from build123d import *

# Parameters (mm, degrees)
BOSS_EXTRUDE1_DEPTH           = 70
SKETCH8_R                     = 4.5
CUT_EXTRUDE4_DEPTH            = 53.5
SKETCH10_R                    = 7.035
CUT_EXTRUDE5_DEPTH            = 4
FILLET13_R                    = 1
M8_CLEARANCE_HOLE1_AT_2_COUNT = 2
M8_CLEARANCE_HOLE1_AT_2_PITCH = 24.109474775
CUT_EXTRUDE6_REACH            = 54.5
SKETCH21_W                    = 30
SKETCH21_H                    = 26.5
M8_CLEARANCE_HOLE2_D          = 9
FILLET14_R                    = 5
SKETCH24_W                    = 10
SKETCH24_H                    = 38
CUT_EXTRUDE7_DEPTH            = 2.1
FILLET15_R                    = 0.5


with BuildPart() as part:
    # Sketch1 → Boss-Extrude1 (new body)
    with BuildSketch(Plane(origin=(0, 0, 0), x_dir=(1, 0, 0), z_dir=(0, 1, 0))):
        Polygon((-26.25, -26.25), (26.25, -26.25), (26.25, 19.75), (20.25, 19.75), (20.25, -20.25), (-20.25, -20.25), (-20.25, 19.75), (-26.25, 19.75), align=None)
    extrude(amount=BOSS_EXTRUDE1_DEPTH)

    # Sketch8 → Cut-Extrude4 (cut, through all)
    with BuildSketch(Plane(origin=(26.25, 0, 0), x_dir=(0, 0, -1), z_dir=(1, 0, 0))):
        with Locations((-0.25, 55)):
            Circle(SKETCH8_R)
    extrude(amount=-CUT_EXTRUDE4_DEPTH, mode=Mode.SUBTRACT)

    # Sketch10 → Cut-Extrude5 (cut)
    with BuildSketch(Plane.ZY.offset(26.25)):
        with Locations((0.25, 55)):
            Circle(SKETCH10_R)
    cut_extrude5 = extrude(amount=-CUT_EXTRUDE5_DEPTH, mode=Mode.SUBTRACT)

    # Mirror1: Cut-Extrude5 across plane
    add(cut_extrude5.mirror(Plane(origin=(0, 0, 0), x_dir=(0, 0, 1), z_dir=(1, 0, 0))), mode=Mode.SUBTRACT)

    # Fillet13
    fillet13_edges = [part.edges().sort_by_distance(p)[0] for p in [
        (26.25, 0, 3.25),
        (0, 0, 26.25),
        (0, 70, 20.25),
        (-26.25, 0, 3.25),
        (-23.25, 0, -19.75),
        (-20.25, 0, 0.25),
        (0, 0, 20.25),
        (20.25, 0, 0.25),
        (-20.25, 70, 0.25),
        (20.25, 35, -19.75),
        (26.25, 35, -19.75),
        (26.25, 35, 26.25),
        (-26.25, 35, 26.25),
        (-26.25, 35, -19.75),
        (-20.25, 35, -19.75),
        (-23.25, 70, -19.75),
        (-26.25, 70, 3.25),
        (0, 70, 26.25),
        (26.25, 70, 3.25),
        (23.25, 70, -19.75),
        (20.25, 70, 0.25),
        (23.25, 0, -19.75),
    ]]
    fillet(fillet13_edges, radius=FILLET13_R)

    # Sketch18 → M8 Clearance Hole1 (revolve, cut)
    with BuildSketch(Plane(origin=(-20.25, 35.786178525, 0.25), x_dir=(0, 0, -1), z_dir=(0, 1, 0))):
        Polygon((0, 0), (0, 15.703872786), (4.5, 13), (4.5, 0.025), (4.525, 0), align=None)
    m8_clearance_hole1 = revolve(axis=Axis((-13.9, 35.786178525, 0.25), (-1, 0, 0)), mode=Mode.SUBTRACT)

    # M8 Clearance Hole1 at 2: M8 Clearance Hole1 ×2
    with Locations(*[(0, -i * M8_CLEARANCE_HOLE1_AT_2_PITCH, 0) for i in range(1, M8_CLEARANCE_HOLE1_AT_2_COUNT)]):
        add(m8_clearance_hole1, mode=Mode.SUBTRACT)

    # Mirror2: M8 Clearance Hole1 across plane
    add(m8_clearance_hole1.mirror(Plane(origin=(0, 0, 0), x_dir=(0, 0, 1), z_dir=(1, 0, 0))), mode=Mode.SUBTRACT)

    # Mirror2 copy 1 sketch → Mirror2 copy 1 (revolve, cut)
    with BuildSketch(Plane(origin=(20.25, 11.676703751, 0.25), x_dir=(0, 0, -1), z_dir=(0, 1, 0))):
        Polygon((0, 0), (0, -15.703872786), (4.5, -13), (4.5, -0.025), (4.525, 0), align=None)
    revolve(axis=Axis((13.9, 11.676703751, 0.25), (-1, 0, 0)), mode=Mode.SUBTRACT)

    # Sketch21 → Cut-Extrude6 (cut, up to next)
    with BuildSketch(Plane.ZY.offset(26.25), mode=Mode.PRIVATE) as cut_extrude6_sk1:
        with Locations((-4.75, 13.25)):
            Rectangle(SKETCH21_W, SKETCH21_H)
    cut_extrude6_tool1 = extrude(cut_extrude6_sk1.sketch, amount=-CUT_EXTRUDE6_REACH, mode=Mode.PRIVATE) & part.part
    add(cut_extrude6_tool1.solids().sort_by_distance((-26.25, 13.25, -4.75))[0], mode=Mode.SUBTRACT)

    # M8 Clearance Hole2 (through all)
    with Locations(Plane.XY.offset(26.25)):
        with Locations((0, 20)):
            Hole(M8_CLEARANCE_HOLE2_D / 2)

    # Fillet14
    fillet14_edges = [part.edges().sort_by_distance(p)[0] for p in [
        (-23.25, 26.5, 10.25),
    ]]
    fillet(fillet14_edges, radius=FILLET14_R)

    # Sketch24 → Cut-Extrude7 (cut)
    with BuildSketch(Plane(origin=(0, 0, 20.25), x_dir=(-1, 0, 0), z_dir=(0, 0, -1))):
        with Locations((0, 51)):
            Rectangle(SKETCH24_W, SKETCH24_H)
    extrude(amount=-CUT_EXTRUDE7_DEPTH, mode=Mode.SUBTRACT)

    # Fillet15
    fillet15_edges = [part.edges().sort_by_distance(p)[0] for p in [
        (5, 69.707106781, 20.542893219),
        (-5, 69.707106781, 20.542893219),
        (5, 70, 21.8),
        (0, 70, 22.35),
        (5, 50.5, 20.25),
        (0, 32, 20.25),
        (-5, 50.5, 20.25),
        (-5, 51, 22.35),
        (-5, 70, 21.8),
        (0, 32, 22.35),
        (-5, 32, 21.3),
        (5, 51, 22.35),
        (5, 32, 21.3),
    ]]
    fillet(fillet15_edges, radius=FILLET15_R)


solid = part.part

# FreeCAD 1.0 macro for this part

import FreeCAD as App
import Part
import Sketcher
from FreeCAD import Vector
Q = App.Units.Quantity


def edges_at(feature, points):
    """Names of the edges that pass closest to the given points."""
    edges = feature.Shape.Edges
    near = lambda p: min(range(len(edges)), key=lambda i: edges[i].distToShape(Part.Vertex(*p))[0])
    return sorted({f"Edge{near(p) + 1}" for p in points})


def add_polygon(sketch, points):
    """Adds a closed chain of lines whose ends are joined by coincident constraints."""
    first, n = sketch.GeometryCount, len(points)
    for a, b in zip(points, points[1:] + points[:1]):
        sketch.addGeometry(Part.LineSegment(App.Vector(*a, 0), App.Vector(*b, 0)), False)
    for i in range(n):
        sketch.addConstraint(Sketcher.Constraint("Coincident", first + i, 2, first + (i + 1) % n, 1))

doc = App.newDocument("Part")
body = doc.addObject("PartDesign::Body", "Body")

# Sketch on XZ plane
sketch1 = body.newObject("Sketcher::SketchObject", "Sketch")
sketch1.AttachmentSupport = (doc.getObject("XZ_Plane"), [""])
sketch1.MapMode = "FlatFace"
add_polygon(sketch1, [(-26.25, 26.25), (26.25, 26.25), (26.25, -19.75), (20.25, -19.75), (20.25, 20.25), (-20.25, 20.25), (-20.25, -19.75), (-26.25, -19.75)])  # lines 0-7
sketch1.addConstraint([
    Sketcher.Constraint("Horizontal", 0),
    Sketcher.Constraint("Vertical", 1),
    Sketcher.Constraint("Horizontal", 2),
    Sketcher.Constraint("Vertical", 3),
    Sketcher.Constraint("Horizontal", 4),
    Sketcher.Constraint("Vertical", 5),
    Sketcher.Constraint("Horizontal", 6),
    Sketcher.Constraint("Vertical", 7),
    Sketcher.Constraint("Symmetric", 2, 2, 5, 2, -2),
    Sketcher.Constraint("Equal", 2, 6),
    Sketcher.Constraint("DistanceX", 2, 2, 2, 1, 6.0),
    Sketcher.Constraint("DistanceY", 1, 2, 1, 1, 46.0),
    Sketcher.Constraint("DistanceY", 3, 1, 3, 2, 40.0),
    Sketcher.Constraint("DistanceX", 0, 1, 0, 2, 52.5),
    Sketcher.Constraint("DistanceY", -1, 1, 0, 2, 26.25),
])
pad1 = body.newObject("PartDesign::Pad", "Pad")
pad1.Profile = sketch1
pad1.Length = 70
pad1.Reversed = True

# Sketch on YZ plane
sketch2 = body.newObject("Sketcher::SketchObject", "Sketch001")
sketch2.AttachmentSupport = (doc.getObject("YZ_Plane"), [""])
sketch2.MapMode = "FlatFace"
sketch2.AttachmentOffset = App.Placement(Vector(0, 0, 26.25), App.Rotation())
sketch2.addGeometry(Part.Circle(Vector(55, 0.25, 0), Vector(0, 0, 1), 4.5), False)
sketch2.addConstraint([
    Sketcher.Constraint("Diameter", 0, 9.0),
    Sketcher.Constraint("DistanceX", -1, 1, 0, 3, 55.0),
    Sketcher.Constraint("DistanceY", -1, 1, 0, 3, 0.25),
])
pocket1 = body.newObject("PartDesign::Pocket", "Pocket")
pocket1.Profile = sketch2
pocket1.Type = "ThroughAll"

# Sketch on YZ plane
sketch3 = body.newObject("Sketcher::SketchObject", "Sketch002")
sketch3.AttachmentSupport = (doc.getObject("YZ_Plane"), [""])
sketch3.MapMode = "FlatFace"
sketch3.AttachmentOffset = App.Placement(Vector(0, 0, -26.25), App.Rotation())
sketch3.addGeometry(Part.Circle(Vector(55, 0.25, 0), Vector(0, 0, 1), 7.035), False)
sketch3.addConstraint([
    Sketcher.Constraint("Diameter", 0, 14.07),
    Sketcher.Constraint("DistanceX", -1, 1, 0, 3, 55.0),
    Sketcher.Constraint("DistanceY", -1, 1, 0, 3, 0.25),
])
pocket2 = body.newObject("PartDesign::Pocket", "Pocket001")
pocket2.Profile = sketch3
pocket2.Length = 4
pocket2.Reversed = True
doc.recompute()

mirrored = body.newObject("PartDesign::Mirrored", "Mirrored")
mirrored.Originals = [pocket2]
mirrored.MirrorPlane = (doc.getObject("YZ_Plane"), [""])
body.Tip = mirrored
doc.recompute()

fillet = body.newObject("PartDesign::Fillet", "Fillet")
fillet.Base = (mirrored, edges_at(mirrored, [
    (26.25, 0, 3.25),
    (0, 0, 26.25),
    (0, 70, 20.25),
    (-26.25, 0, 3.25),
    (-23.25, 0, -19.75),
    (-20.25, 0, 0.25),
    (0, 0, 20.25),
    (20.25, 0, 0.25),
    (-20.25, 70, 0.25),
    (20.25, 35, -19.75),
    (26.25, 35, -19.75),
    (26.25, 35, 26.25),
    (-26.25, 35, 26.25),
    (-26.25, 35, -19.75),
    (-20.25, 35, -19.75),
    (-23.25, 70, -19.75),
    (-26.25, 70, 3.25),
    (0, 70, 26.25),
    (26.25, 70, 3.25),
    (23.25, 70, -19.75),
    (20.25, 70, 0.25),
    (23.25, 0, -19.75),
]))
fillet.Radius = 1

# Sketch on XZ plane
sketch4 = body.newObject("Sketcher::SketchObject", "Sketch003")
sketch4.AttachmentSupport = (doc.getObject("XZ_Plane"), [""])
sketch4.MapMode = "FlatFace"
sketch4.AttachmentOffset = App.Placement(Vector(0, 0, -35.786179), App.Rotation())
add_polygon(sketch4, [(-35.953873, 0.25), (-20.25, 0.25), (-20.25, -4.275), (-20.275, -4.25), (-33.25, -4.25)])  # lines 0-4
sketch4.addGeometry(Part.LineSegment(Vector(-20.25, 0.25, 0), Vector(-35.953873, 0.25, 0)), True)  # axis
sketch4.addConstraint([
    Sketcher.Constraint("Horizontal", 0),
    Sketcher.Constraint("Vertical", 1),
    Sketcher.Constraint("Horizontal", 3),
    Sketcher.Constraint("Horizontal", 5),
    Sketcher.Constraint("Coincident", 5, 1, 0, 2),
    Sketcher.Constraint("Equal", 0, 5),
    Sketcher.Constraint("Angle", 2, Q("135 deg")),
    Sketcher.Constraint("Angle", 4, Q("121 deg")),
    Sketcher.Constraint("DistanceX", 3, 2, 1, 2, 13.0),
    Sketcher.Constraint("DistanceY", 2, 2, 0, 2, 4.5),
    Sketcher.Constraint("DistanceX", 3, 2, 3, 1, 12.975),
    Sketcher.Constraint("DistanceX", 0, 2, -1, 1, 20.25),
    Sketcher.Constraint("DistanceY", -1, 1, 0, 2, 0.25),
])
groove = body.newObject("PartDesign::Groove", "Groove")
groove.Profile = sketch4
groove.ReferenceAxis = (sketch4, ["Axis0"])
groove.Angle = 360
doc.recompute()

linearpattern = body.newObject("PartDesign::LinearPattern", "LinearPattern")
linearpattern.Originals = [groove]
linearpattern.Direction = (doc.getObject("Y_Axis"), [""])
linearpattern.Mode = "offset"
linearpattern.Offset = 24.109475
linearpattern.Occurrences = 2
linearpattern.Reversed = True
body.Tip = linearpattern
doc.recompute()

mirrored2 = body.newObject("PartDesign::Mirrored", "Mirrored001")
mirrored2.Originals = [groove]
mirrored2.MirrorPlane = (doc.getObject("YZ_Plane"), [""])
body.Tip = mirrored2

# Sketch on XZ plane
sketch5 = body.newObject("Sketcher::SketchObject", "Sketch004")
sketch5.AttachmentSupport = (doc.getObject("XZ_Plane"), [""])
sketch5.MapMode = "FlatFace"
sketch5.AttachmentOffset = App.Placement(Vector(0, 0, -11.676704), App.Rotation())
add_polygon(sketch5, [(20.25, 0.25), (35.953873, 0.25), (33.25, -4.25), (20.275, -4.25), (20.25, -4.275)])  # lines 0-4
sketch5.addGeometry(Part.LineSegment(Vector(35.953873, 0.25, 0), Vector(20.25, 0.25, 0)), True)  # axis
sketch5.addConstraint([
    Sketcher.Constraint("Horizontal", 0),
    Sketcher.Constraint("Horizontal", 2),
    Sketcher.Constraint("Vertical", 4),
    Sketcher.Constraint("Horizontal", 5),
    Sketcher.Constraint("Coincident", 5, 1, 0, 2),
    Sketcher.Constraint("Vertical", 3, 2, 5, 2),
    Sketcher.Constraint("Angle", 1, Q("-121 deg")),
    Sketcher.Constraint("Angle", 3, Q("-135 deg")),
    Sketcher.Constraint("DistanceX", 3, 2, 1, 2, 13.0),
    Sketcher.Constraint("DistanceY", 1, 2, 0, 2, 4.5),
    Sketcher.Constraint("DistanceX", 2, 2, 2, 1, 12.975),
    Sketcher.Constraint("DistanceY", -1, 1, 0, 2, 0.25),
    Sketcher.Constraint("DistanceX", -1, 1, 1, 2, 33.25),
])
groove2 = body.newObject("PartDesign::Groove", "Groove001")
groove2.Profile = sketch5
groove2.ReferenceAxis = (sketch5, ["Axis0"])
groove2.Angle = 360

# Sketch on YZ plane
sketch6 = body.newObject("Sketcher::SketchObject", "Sketch005")
sketch6.AttachmentSupport = (doc.getObject("YZ_Plane"), [""])
sketch6.MapMode = "FlatFace"
sketch6.AttachmentOffset = App.Placement(Vector(0, 0, -26.25), App.Rotation())
add_polygon(sketch6, [(26.5, -19.75), (0, -19.75), (0, 10.25), (26.5, 10.25)])  # lines 0-3
sketch6.addConstraint([
    Sketcher.Constraint("Horizontal", 0),
    Sketcher.Constraint("Vertical", 1),
    Sketcher.Constraint("Horizontal", 2),
    Sketcher.Constraint("Vertical", 3),
    Sketcher.Constraint("PointOnObject", 0, 2, -2),
    Sketcher.Constraint("DistanceY", 1, 1, 1, 2, 30.0),
    Sketcher.Constraint("DistanceX", 0, 2, 0, 1, 26.5),
    Sketcher.Constraint("DistanceY", 0, 2, -1, 1, 19.75),
])
pocket3 = body.newObject("PartDesign::Pocket", "Pocket002")
pocket3.Profile = sketch6
pocket3.Type = "UpToFirst"
pocket3.Reversed = True

# Sketch on XY plane
sketch7 = body.newObject("Sketcher::SketchObject", "Sketch006")
sketch7.AttachmentSupport = (doc.getObject("XY_Plane"), [""])
sketch7.MapMode = "FlatFace"
sketch7.AttachmentOffset = App.Placement(Vector(0, 0, 26.25), App.Rotation())
sketch7.addGeometry(Part.Circle(Vector(0, 20, 0), Vector(0, 0, 1), 4.5), False)
sketch7.addConstraint([
    Sketcher.Constraint("PointOnObject", 0, 3, -2),
    Sketcher.Constraint("Diameter", 0, 9.0),
    Sketcher.Constraint("DistanceY", -1, 1, 0, 3, 20.0),
])
doc.recompute()
hole = body.newObject("PartDesign::Hole", "Hole")
hole.Profile = sketch7
hole.ThreadType = "None"
hole.Diameter = 9
hole.DepthType = "ThroughAll"
doc.recompute()

fillet2 = body.newObject("PartDesign::Fillet", "Fillet001")
fillet2.Base = (hole, edges_at(hole, [(-23.25, 26.5, 10.25)]))
fillet2.Radius = 5

# Sketch on XY plane
sketch8 = body.newObject("Sketcher::SketchObject", "Sketch007")
sketch8.AttachmentSupport = (doc.getObject("XY_Plane"), [""])
sketch8.MapMode = "FlatFace"
sketch8.AttachmentOffset = App.Placement(Vector(0, 0, 20.25), App.Rotation())
add_polygon(sketch8, [(5, 70), (5, 32), (-5, 32), (-5, 70)])  # lines 0-3
sketch8.addConstraint([
    Sketcher.Constraint("Vertical", 0),
    Sketcher.Constraint("Horizontal", 1),
    Sketcher.Constraint("Vertical", 2),
    Sketcher.Constraint("Horizontal", 3),
    Sketcher.Constraint("DistanceX", 1, 2, 1, 1, 10.0),
    Sketcher.Constraint("DistanceY", 0, 2, 0, 1, 38.0),
    Sketcher.Constraint("DistanceX", -1, 1, 0, 2, 5.0),
    Sketcher.Constraint("DistanceY", -1, 1, 0, 2, 32.0),
])
pocket4 = body.newObject("PartDesign::Pocket", "Pocket003")
pocket4.Profile = sketch8
pocket4.Length = 2.1
pocket4.Reversed = True
doc.recompute()

fillet3 = body.newObject("PartDesign::Fillet", "Fillet002")
fillet3.Base = (pocket4, edges_at(pocket4, [
    (5, 69.707, 20.543),
    (-5, 69.707, 20.543),
    (5, 70, 21.8),
    (0, 70, 22.35),
    (5, 50.5, 20.25),
    (0, 32, 20.25),
    (-5, 50.5, 20.25),
    (-5, 51, 22.35),
    (-5, 70, 21.8),
    (0, 32, 22.35),
    (-5, 32, 21.3),
    (5, 51, 22.35),
    (5, 32, 21.3),
]))
fillet3.Radius = 0.5

doc.recompute()
